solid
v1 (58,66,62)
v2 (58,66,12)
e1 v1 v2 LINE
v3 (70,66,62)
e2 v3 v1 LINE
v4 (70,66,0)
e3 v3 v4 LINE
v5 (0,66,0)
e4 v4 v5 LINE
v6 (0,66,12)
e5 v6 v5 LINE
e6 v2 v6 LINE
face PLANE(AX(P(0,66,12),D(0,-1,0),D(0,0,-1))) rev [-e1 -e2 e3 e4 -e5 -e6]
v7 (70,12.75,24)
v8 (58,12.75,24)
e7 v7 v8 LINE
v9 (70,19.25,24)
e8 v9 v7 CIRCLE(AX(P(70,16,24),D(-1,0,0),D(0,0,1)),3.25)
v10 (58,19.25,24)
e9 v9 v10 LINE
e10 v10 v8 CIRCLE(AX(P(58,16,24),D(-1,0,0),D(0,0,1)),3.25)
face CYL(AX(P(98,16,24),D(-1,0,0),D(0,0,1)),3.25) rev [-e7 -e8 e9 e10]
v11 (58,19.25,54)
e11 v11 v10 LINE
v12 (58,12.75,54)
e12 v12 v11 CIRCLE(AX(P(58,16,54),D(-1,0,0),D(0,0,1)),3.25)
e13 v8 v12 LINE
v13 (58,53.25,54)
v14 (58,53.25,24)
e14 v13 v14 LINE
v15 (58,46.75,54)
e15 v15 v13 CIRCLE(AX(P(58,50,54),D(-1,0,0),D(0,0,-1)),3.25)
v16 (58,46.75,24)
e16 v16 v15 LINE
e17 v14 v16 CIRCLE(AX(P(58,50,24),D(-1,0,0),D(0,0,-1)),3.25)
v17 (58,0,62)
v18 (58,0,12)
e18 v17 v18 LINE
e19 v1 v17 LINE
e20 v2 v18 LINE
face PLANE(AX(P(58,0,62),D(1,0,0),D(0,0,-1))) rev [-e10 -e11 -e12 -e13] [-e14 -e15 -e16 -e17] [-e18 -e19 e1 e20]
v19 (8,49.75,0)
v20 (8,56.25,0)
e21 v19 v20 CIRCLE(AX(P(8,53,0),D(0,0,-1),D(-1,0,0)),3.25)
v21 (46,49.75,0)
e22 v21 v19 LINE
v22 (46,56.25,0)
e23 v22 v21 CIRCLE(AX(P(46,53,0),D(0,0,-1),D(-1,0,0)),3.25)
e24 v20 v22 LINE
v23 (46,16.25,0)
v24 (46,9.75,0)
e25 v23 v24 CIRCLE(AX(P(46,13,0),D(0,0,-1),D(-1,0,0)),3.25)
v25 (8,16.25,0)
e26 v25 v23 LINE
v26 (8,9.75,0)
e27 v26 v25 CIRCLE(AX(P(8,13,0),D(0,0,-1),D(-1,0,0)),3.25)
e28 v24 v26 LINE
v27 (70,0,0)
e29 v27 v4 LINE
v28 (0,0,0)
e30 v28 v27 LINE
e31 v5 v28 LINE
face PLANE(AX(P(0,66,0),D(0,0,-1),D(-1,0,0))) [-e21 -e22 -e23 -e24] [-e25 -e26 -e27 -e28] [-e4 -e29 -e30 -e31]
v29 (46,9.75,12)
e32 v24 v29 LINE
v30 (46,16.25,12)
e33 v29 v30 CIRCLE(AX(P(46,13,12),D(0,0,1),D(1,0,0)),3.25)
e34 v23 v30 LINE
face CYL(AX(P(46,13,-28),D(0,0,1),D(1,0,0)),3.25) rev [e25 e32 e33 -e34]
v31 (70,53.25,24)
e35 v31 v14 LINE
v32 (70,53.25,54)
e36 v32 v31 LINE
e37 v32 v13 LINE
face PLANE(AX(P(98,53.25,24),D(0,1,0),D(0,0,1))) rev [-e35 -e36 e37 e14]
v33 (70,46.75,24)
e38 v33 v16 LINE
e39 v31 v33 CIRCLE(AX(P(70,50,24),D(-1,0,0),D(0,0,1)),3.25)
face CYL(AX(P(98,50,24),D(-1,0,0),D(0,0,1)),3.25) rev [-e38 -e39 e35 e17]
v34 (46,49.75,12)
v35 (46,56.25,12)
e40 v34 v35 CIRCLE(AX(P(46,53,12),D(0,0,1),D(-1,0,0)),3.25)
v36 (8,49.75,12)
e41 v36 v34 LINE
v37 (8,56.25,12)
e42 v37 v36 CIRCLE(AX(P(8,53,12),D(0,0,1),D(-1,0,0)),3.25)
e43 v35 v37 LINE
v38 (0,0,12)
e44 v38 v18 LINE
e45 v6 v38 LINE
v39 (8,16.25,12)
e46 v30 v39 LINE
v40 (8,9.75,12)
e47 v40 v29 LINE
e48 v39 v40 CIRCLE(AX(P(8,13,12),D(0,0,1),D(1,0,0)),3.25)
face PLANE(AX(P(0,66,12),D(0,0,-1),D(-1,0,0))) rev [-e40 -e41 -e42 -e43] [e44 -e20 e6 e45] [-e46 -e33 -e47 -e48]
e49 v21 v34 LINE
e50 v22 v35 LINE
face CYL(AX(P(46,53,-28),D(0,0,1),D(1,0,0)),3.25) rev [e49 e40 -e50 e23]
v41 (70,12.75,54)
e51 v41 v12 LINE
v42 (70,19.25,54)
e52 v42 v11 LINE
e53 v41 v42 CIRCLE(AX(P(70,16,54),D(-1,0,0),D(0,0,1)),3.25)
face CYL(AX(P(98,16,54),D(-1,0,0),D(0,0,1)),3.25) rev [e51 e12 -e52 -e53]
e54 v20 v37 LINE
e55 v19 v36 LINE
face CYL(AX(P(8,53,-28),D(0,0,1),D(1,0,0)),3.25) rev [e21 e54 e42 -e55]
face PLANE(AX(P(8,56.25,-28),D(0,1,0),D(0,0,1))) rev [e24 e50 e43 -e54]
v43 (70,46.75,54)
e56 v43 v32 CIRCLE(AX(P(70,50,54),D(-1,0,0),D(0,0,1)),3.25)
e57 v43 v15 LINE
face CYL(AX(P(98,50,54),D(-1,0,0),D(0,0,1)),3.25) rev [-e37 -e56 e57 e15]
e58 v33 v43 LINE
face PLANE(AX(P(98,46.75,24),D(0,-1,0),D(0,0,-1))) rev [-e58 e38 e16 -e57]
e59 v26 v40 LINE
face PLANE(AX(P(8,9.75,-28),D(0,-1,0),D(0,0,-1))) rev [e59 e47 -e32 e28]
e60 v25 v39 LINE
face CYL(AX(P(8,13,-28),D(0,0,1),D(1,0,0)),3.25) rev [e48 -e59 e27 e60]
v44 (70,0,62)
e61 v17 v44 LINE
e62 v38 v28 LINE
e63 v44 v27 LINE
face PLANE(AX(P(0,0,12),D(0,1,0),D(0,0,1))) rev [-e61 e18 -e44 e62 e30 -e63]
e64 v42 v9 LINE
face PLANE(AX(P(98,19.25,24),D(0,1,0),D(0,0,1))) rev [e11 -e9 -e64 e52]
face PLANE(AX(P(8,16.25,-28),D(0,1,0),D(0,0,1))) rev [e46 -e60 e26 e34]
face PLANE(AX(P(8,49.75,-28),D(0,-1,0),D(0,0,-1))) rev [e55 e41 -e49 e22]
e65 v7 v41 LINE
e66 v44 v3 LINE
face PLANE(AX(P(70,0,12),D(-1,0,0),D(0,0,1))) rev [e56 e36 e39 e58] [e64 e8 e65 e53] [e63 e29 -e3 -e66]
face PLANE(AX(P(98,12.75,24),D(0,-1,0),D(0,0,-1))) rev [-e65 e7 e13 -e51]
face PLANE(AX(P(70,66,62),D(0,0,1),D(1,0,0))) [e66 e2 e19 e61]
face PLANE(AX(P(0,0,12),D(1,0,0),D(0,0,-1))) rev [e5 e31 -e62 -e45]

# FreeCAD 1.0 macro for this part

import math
import FreeCAD as App
import Part
import Sketcher
from FreeCAD import Vector
Q = App.Units.Quantity


def add_polygon(sketch, points):
    """Adds a closed chain of lines whose ends are joined by coincident constraints."""
    first, n = sketch.GeometryCount, len(points)
    for a, b in zip(points, points[1:] + points[:1]):
        sketch.addGeometry(Part.LineSegment(App.Vector(*a, 0), App.Vector(*b, 0)), False)
    for i in range(n):
        sketch.addConstraint(Sketcher.Constraint("Coincident", first + i, 2, first + (i + 1) % n, 1))

doc = App.newDocument("Part")
body = doc.addObject("PartDesign::Body", "Body")

# Sketch on XY plane
sketch1 = body.newObject("Sketcher::SketchObject", "Sketch")
sketch1.AttachmentSupport = (doc.getObject("XY_Plane"), [""])
sketch1.MapMode = "FlatFace"
add_polygon(sketch1, [(0, 66), (0, 0), (70, 0), (70, 66)])  # lines 0-3
sketch1.addConstraint([
    Sketcher.Constraint("Vertical", 0),
    Sketcher.Constraint("Horizontal", 1),
    Sketcher.Constraint("Vertical", 2),
    Sketcher.Constraint("Horizontal", 3),
    Sketcher.Constraint("Coincident", 0, 2, -1, 1),
    Sketcher.Constraint("DistanceX", 1, 1, 1, 2, Q("70 mm")),
    Sketcher.Constraint("DistanceY", 0, 2, 0, 1, Q("66 mm")),
])
pad1 = body.newObject("PartDesign::Pad", "Pad")
pad1.Profile = sketch1
pad1.Length = 12

# Sketch on XY plane
sketch2 = body.newObject("Sketcher::SketchObject", "Sketch001")
sketch2.AttachmentSupport = (doc.getObject("XY_Plane"), [""])
sketch2.MapMode = "FlatFace"
sketch2.AttachmentOffset = App.Placement(Vector(0, 0, 12), App.Rotation())
add_polygon(sketch2, [(58, 66), (58, 0), (70, 0), (70, 66)])  # lines 0-3
sketch2.addConstraint([
    Sketcher.Constraint("Vertical", 0),
    Sketcher.Constraint("Horizontal", 1),
    Sketcher.Constraint("Vertical", 2),
    Sketcher.Constraint("Horizontal", 3),
    Sketcher.Constraint("PointOnObject", 0, 2, -1),
    Sketcher.Constraint("DistanceX", 1, 1, 1, 2, Q("12 mm")),
    Sketcher.Constraint("DistanceY", 0, 2, 0, 1, Q("66 mm")),
    Sketcher.Constraint("DistanceX", -1, 1, 0, 2, Q("58 mm")),
])
pad2 = body.newObject("PartDesign::Pad", "Pad001")
pad2.Profile = sketch2
pad2.Length = 50

# Sketch on YZ plane
sketch3 = body.newObject("Sketcher::SketchObject", "Sketch002")
sketch3.AttachmentSupport = (doc.getObject("YZ_Plane"), [""])
sketch3.MapMode = "FlatFace"
sketch3.AttachmentOffset = App.Placement(Vector(0, 0, 58), App.Rotation())
sketch3.addGeometry([
    Part.LineSegment(Vector(19.2, 54, 0), Vector(19.2, 24, 0)),  # 0
    Part.ArcOfCircle(Part.Circle(Vector(16, 24, 0), Vector(0, 0, 1), 3.2), math.radians(180), math.radians(360)),  # 1
    Part.LineSegment(Vector(12.8, 24, 0), Vector(12.8, 54, 0)),  # 2
    Part.ArcOfCircle(Part.Circle(Vector(16, 54, 0), Vector(0, 0, 1), 3.2), math.radians(0), math.radians(180)),  # 3
    Part.LineSegment(Vector(46.8, 24, 0), Vector(46.8, 54, 0)),  # 4
    Part.ArcOfCircle(Part.Circle(Vector(50, 54, 0), Vector(0, 0, 1), 3.2), math.radians(0), math.radians(180)),  # 5
    Part.LineSegment(Vector(53.2, 54, 0), Vector(53.2, 24, 0)),  # 6
    Part.ArcOfCircle(Part.Circle(Vector(50, 24, 0), Vector(0, 0, 1), 3.2), math.radians(180), math.radians(360)),  # 7
], False)
sketch3.addConstraint([
    Sketcher.Constraint("Tangent", 0, 2, 1, 2),
    Sketcher.Constraint("Tangent", 1, 1, 2, 1),
    Sketcher.Constraint("Tangent", 2, 2, 3, 2),
    Sketcher.Constraint("Tangent", 3, 1, 0, 1),
    Sketcher.Constraint("Tangent", 4, 2, 5, 2),
    Sketcher.Constraint("Tangent", 5, 1, 6, 1),
    Sketcher.Constraint("Tangent", 6, 2, 7, 2),
    Sketcher.Constraint("Tangent", 7, 1, 4, 1),
    Sketcher.Constraint("Vertical", 0),
    Sketcher.Constraint("Vertical", 2),
    Sketcher.Constraint("Vertical", 4),
    Sketcher.Constraint("Vertical", 6),
    Sketcher.Constraint("Equal", 3, 5),
    Sketcher.Constraint("Horizontal", 3, 3, 5, 3),
    Sketcher.Constraint("Horizontal", 1, 3, 7, 3),
    Sketcher.Constraint("DistanceY", 0, 2, 0, 1, Q("30 mm")),
    Sketcher.Constraint("Radius", 1, Q("3.25 mm")),
    Sketcher.Constraint("DistanceX", -1, 1, 1, 3, Q("16 mm")),
    Sketcher.Constraint("DistanceY", -1, 1, 1, 3, Q("24 mm")),
    Sketcher.Constraint("DistanceX", -1, 1, 5, 3, Q("50 mm")),
])
pocket1 = body.newObject("PartDesign::Pocket", "Pocket")
pocket1.Profile = sketch3
pocket1.Length = 40
pocket1.Reversed = True

# Sketch on XY plane
sketch4 = body.newObject("Sketcher::SketchObject", "Sketch003")
sketch4.AttachmentSupport = (doc.getObject("XY_Plane"), [""])
sketch4.MapMode = "FlatFace"
sketch4.AttachmentOffset = App.Placement(Vector(0, 0, 12), App.Rotation())
sketch4.addGeometry([
    Part.LineSegment(Vector(46, 16.2, 0), Vector(8, 16.2, 0)),  # 0
    Part.ArcOfCircle(Part.Circle(Vector(8, 13, 0), Vector(0, 0, 1), 3.2), math.radians(90), math.radians(270)),  # 1
    Part.LineSegment(Vector(8, 9.8, 0), Vector(46, 9.8, 0)),  # 2
    Part.ArcOfCircle(Part.Circle(Vector(46, 13, 0), Vector(0, 0, 1), 3.2), math.radians(-90), math.radians(90)),  # 3
    Part.LineSegment(Vector(8, 49.8, 0), Vector(46, 49.8, 0)),  # 4
    Part.ArcOfCircle(Part.Circle(Vector(46, 53, 0), Vector(0, 0, 1), 3.2), math.radians(-90), math.radians(90)),  # 5
    Part.LineSegment(Vector(46, 56.2, 0), Vector(8, 56.2, 0)),  # 6
    Part.ArcOfCircle(Part.Circle(Vector(8, 53, 0), Vector(0, 0, 1), 3.2), math.radians(90), math.radians(270)),  # 7
], False)
sketch4.addConstraint([
    Sketcher.Constraint("Tangent", 0, 2, 1, 1),
    Sketcher.Constraint("Tangent", 1, 2, 2, 1),
    Sketcher.Constraint("Tangent", 2, 2, 3, 1),
    Sketcher.Constraint("Tangent", 3, 2, 0, 1),
    Sketcher.Constraint("Tangent", 4, 2, 5, 1),
    Sketcher.Constraint("Tangent", 5, 2, 6, 1),
    Sketcher.Constraint("Tangent", 6, 2, 7, 1),
    Sketcher.Constraint("Tangent", 7, 2, 4, 1),
    Sketcher.Constraint("Horizontal", 0),
    Sketcher.Constraint("Horizontal", 2),
    Sketcher.Constraint("Horizontal", 4),
    Sketcher.Constraint("Horizontal", 6),
    Sketcher.Constraint("Equal", 3, 5),
    Sketcher.Constraint("Vertical", 3, 3, 5, 3),
    Sketcher.Constraint("Vertical", 1, 3, 7, 3),
    Sketcher.Constraint("DistanceX", 0, 2, 0, 1, Q("38 mm")),
    Sketcher.Constraint("Radius", 1, Q("3.25 mm")),
    Sketcher.Constraint("DistanceX", -1, 1, 1, 3, Q("8 mm")),
    Sketcher.Constraint("DistanceY", -1, 1, 1, 3, Q("13 mm")),
    Sketcher.Constraint("DistanceY", -1, 1, 5, 3, Q("53 mm")),
])
pocket2 = body.newObject("PartDesign::Pocket", "Pocket001")
pocket2.Profile = sketch4
pocket2.Length = 40

doc.recompute()
